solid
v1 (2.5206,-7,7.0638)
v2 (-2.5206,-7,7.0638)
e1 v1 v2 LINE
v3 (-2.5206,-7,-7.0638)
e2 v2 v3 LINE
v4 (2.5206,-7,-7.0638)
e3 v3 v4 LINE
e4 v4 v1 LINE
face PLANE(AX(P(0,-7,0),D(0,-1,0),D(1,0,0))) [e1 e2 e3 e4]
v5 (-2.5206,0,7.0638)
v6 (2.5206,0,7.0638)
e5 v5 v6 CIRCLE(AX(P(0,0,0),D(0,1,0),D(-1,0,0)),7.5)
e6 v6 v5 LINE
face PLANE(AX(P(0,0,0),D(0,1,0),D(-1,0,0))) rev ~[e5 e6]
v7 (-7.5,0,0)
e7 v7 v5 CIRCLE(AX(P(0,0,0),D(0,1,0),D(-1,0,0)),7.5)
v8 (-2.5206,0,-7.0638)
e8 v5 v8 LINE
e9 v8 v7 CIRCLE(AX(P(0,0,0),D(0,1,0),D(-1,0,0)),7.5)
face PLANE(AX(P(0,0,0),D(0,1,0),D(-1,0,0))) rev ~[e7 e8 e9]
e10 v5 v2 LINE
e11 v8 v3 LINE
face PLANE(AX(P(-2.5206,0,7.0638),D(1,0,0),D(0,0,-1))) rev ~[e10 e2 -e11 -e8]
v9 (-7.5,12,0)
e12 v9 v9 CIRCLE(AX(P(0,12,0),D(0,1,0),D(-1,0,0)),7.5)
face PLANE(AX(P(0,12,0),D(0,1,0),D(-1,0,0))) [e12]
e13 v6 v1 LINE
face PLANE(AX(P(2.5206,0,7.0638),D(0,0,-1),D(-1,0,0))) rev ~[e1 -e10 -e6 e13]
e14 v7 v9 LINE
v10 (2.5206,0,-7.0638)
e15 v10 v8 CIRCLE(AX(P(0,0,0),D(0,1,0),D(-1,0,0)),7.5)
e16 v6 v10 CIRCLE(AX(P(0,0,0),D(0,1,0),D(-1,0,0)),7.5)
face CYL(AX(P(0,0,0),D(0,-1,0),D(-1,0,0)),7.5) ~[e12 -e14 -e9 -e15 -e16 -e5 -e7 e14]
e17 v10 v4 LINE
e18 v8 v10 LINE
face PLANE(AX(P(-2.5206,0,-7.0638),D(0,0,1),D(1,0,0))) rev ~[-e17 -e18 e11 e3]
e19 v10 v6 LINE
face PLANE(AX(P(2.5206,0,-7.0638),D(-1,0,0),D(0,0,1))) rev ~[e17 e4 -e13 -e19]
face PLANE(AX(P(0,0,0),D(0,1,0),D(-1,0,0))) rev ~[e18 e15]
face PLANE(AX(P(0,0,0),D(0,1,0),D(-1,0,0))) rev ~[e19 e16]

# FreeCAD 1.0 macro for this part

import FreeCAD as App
import Part
import Sketcher


def add_polygon(sketch, points):
    """Adds a closed chain of lines whose ends are joined by coincident constraints."""
    first, n = sketch.GeometryCount, len(points)
    for a, b in zip(points, points[1:] + points[:1]):
        sketch.addGeometry(Part.LineSegment(App.Vector(*a, 0), App.Vector(*b, 0)), False)
    for i in range(n):
        sketch.addConstraint(Sketcher.Constraint("Coincident", first + i, 2, first + (i + 1) % n, 1))

doc = App.newDocument("Part")
body = doc.addObject("PartDesign::Body", "Body")

# Sketch on XZ plane
sketch1 = doc.addObject("Sketcher::SketchObject", "Sketch")
body.addObject(sketch1)
sketch1.AttachmentSupport = (doc.XZ_Plane, [""])
sketch1.MapMode = "FlatFace"
sketch1.addGeometry(Part.Circle(App.Vector(0, 0, 0), App.Vector(0, 0, 1), 8), False)
sketch1.addConstraint([
    Sketcher.Constraint("Coincident", 0, 3, -1, 1),
    Sketcher.Constraint("Diameter", 0, 15.0),
])
pad1 = doc.addObject("PartDesign::Pad", "Pad")
body.addObject(pad1)
pad1.Profile = sketch1
pad1.Length = 12
pad1.Reversed = True

# Sketch on XZ plane
sketch2 = doc.addObject("Sketcher::SketchObject", "Sketch001")
body.addObject(sketch2)
sketch2.AttachmentSupport = (doc.XZ_Plane, [""])
sketch2.MapMode = "FlatFace"
add_polygon(sketch2, [(3, -7), (3, 7), (-3, 7), (-3, -7)])  # lines 0-3
sketch2.addConstraint([
    Sketcher.Constraint("Vertical", 0),
    Sketcher.Constraint("Horizontal", 1),
    Sketcher.Constraint("Vertical", 2),
    Sketcher.Constraint("Horizontal", 3),
    Sketcher.Constraint("Symmetric", 0, 2, 2, 2, -1, 1),
    Sketcher.Constraint("DistanceX", 1, 2, 1, 1, 5.0412),
    Sketcher.Constraint("DistanceY", 0, 1, 0, 2, 14.1276),
])
pad2 = doc.addObject("PartDesign::Pad", "Pad001")
body.addObject(pad2)
pad2.Profile = sketch2
pad2.Length = 7

doc.recompute()
